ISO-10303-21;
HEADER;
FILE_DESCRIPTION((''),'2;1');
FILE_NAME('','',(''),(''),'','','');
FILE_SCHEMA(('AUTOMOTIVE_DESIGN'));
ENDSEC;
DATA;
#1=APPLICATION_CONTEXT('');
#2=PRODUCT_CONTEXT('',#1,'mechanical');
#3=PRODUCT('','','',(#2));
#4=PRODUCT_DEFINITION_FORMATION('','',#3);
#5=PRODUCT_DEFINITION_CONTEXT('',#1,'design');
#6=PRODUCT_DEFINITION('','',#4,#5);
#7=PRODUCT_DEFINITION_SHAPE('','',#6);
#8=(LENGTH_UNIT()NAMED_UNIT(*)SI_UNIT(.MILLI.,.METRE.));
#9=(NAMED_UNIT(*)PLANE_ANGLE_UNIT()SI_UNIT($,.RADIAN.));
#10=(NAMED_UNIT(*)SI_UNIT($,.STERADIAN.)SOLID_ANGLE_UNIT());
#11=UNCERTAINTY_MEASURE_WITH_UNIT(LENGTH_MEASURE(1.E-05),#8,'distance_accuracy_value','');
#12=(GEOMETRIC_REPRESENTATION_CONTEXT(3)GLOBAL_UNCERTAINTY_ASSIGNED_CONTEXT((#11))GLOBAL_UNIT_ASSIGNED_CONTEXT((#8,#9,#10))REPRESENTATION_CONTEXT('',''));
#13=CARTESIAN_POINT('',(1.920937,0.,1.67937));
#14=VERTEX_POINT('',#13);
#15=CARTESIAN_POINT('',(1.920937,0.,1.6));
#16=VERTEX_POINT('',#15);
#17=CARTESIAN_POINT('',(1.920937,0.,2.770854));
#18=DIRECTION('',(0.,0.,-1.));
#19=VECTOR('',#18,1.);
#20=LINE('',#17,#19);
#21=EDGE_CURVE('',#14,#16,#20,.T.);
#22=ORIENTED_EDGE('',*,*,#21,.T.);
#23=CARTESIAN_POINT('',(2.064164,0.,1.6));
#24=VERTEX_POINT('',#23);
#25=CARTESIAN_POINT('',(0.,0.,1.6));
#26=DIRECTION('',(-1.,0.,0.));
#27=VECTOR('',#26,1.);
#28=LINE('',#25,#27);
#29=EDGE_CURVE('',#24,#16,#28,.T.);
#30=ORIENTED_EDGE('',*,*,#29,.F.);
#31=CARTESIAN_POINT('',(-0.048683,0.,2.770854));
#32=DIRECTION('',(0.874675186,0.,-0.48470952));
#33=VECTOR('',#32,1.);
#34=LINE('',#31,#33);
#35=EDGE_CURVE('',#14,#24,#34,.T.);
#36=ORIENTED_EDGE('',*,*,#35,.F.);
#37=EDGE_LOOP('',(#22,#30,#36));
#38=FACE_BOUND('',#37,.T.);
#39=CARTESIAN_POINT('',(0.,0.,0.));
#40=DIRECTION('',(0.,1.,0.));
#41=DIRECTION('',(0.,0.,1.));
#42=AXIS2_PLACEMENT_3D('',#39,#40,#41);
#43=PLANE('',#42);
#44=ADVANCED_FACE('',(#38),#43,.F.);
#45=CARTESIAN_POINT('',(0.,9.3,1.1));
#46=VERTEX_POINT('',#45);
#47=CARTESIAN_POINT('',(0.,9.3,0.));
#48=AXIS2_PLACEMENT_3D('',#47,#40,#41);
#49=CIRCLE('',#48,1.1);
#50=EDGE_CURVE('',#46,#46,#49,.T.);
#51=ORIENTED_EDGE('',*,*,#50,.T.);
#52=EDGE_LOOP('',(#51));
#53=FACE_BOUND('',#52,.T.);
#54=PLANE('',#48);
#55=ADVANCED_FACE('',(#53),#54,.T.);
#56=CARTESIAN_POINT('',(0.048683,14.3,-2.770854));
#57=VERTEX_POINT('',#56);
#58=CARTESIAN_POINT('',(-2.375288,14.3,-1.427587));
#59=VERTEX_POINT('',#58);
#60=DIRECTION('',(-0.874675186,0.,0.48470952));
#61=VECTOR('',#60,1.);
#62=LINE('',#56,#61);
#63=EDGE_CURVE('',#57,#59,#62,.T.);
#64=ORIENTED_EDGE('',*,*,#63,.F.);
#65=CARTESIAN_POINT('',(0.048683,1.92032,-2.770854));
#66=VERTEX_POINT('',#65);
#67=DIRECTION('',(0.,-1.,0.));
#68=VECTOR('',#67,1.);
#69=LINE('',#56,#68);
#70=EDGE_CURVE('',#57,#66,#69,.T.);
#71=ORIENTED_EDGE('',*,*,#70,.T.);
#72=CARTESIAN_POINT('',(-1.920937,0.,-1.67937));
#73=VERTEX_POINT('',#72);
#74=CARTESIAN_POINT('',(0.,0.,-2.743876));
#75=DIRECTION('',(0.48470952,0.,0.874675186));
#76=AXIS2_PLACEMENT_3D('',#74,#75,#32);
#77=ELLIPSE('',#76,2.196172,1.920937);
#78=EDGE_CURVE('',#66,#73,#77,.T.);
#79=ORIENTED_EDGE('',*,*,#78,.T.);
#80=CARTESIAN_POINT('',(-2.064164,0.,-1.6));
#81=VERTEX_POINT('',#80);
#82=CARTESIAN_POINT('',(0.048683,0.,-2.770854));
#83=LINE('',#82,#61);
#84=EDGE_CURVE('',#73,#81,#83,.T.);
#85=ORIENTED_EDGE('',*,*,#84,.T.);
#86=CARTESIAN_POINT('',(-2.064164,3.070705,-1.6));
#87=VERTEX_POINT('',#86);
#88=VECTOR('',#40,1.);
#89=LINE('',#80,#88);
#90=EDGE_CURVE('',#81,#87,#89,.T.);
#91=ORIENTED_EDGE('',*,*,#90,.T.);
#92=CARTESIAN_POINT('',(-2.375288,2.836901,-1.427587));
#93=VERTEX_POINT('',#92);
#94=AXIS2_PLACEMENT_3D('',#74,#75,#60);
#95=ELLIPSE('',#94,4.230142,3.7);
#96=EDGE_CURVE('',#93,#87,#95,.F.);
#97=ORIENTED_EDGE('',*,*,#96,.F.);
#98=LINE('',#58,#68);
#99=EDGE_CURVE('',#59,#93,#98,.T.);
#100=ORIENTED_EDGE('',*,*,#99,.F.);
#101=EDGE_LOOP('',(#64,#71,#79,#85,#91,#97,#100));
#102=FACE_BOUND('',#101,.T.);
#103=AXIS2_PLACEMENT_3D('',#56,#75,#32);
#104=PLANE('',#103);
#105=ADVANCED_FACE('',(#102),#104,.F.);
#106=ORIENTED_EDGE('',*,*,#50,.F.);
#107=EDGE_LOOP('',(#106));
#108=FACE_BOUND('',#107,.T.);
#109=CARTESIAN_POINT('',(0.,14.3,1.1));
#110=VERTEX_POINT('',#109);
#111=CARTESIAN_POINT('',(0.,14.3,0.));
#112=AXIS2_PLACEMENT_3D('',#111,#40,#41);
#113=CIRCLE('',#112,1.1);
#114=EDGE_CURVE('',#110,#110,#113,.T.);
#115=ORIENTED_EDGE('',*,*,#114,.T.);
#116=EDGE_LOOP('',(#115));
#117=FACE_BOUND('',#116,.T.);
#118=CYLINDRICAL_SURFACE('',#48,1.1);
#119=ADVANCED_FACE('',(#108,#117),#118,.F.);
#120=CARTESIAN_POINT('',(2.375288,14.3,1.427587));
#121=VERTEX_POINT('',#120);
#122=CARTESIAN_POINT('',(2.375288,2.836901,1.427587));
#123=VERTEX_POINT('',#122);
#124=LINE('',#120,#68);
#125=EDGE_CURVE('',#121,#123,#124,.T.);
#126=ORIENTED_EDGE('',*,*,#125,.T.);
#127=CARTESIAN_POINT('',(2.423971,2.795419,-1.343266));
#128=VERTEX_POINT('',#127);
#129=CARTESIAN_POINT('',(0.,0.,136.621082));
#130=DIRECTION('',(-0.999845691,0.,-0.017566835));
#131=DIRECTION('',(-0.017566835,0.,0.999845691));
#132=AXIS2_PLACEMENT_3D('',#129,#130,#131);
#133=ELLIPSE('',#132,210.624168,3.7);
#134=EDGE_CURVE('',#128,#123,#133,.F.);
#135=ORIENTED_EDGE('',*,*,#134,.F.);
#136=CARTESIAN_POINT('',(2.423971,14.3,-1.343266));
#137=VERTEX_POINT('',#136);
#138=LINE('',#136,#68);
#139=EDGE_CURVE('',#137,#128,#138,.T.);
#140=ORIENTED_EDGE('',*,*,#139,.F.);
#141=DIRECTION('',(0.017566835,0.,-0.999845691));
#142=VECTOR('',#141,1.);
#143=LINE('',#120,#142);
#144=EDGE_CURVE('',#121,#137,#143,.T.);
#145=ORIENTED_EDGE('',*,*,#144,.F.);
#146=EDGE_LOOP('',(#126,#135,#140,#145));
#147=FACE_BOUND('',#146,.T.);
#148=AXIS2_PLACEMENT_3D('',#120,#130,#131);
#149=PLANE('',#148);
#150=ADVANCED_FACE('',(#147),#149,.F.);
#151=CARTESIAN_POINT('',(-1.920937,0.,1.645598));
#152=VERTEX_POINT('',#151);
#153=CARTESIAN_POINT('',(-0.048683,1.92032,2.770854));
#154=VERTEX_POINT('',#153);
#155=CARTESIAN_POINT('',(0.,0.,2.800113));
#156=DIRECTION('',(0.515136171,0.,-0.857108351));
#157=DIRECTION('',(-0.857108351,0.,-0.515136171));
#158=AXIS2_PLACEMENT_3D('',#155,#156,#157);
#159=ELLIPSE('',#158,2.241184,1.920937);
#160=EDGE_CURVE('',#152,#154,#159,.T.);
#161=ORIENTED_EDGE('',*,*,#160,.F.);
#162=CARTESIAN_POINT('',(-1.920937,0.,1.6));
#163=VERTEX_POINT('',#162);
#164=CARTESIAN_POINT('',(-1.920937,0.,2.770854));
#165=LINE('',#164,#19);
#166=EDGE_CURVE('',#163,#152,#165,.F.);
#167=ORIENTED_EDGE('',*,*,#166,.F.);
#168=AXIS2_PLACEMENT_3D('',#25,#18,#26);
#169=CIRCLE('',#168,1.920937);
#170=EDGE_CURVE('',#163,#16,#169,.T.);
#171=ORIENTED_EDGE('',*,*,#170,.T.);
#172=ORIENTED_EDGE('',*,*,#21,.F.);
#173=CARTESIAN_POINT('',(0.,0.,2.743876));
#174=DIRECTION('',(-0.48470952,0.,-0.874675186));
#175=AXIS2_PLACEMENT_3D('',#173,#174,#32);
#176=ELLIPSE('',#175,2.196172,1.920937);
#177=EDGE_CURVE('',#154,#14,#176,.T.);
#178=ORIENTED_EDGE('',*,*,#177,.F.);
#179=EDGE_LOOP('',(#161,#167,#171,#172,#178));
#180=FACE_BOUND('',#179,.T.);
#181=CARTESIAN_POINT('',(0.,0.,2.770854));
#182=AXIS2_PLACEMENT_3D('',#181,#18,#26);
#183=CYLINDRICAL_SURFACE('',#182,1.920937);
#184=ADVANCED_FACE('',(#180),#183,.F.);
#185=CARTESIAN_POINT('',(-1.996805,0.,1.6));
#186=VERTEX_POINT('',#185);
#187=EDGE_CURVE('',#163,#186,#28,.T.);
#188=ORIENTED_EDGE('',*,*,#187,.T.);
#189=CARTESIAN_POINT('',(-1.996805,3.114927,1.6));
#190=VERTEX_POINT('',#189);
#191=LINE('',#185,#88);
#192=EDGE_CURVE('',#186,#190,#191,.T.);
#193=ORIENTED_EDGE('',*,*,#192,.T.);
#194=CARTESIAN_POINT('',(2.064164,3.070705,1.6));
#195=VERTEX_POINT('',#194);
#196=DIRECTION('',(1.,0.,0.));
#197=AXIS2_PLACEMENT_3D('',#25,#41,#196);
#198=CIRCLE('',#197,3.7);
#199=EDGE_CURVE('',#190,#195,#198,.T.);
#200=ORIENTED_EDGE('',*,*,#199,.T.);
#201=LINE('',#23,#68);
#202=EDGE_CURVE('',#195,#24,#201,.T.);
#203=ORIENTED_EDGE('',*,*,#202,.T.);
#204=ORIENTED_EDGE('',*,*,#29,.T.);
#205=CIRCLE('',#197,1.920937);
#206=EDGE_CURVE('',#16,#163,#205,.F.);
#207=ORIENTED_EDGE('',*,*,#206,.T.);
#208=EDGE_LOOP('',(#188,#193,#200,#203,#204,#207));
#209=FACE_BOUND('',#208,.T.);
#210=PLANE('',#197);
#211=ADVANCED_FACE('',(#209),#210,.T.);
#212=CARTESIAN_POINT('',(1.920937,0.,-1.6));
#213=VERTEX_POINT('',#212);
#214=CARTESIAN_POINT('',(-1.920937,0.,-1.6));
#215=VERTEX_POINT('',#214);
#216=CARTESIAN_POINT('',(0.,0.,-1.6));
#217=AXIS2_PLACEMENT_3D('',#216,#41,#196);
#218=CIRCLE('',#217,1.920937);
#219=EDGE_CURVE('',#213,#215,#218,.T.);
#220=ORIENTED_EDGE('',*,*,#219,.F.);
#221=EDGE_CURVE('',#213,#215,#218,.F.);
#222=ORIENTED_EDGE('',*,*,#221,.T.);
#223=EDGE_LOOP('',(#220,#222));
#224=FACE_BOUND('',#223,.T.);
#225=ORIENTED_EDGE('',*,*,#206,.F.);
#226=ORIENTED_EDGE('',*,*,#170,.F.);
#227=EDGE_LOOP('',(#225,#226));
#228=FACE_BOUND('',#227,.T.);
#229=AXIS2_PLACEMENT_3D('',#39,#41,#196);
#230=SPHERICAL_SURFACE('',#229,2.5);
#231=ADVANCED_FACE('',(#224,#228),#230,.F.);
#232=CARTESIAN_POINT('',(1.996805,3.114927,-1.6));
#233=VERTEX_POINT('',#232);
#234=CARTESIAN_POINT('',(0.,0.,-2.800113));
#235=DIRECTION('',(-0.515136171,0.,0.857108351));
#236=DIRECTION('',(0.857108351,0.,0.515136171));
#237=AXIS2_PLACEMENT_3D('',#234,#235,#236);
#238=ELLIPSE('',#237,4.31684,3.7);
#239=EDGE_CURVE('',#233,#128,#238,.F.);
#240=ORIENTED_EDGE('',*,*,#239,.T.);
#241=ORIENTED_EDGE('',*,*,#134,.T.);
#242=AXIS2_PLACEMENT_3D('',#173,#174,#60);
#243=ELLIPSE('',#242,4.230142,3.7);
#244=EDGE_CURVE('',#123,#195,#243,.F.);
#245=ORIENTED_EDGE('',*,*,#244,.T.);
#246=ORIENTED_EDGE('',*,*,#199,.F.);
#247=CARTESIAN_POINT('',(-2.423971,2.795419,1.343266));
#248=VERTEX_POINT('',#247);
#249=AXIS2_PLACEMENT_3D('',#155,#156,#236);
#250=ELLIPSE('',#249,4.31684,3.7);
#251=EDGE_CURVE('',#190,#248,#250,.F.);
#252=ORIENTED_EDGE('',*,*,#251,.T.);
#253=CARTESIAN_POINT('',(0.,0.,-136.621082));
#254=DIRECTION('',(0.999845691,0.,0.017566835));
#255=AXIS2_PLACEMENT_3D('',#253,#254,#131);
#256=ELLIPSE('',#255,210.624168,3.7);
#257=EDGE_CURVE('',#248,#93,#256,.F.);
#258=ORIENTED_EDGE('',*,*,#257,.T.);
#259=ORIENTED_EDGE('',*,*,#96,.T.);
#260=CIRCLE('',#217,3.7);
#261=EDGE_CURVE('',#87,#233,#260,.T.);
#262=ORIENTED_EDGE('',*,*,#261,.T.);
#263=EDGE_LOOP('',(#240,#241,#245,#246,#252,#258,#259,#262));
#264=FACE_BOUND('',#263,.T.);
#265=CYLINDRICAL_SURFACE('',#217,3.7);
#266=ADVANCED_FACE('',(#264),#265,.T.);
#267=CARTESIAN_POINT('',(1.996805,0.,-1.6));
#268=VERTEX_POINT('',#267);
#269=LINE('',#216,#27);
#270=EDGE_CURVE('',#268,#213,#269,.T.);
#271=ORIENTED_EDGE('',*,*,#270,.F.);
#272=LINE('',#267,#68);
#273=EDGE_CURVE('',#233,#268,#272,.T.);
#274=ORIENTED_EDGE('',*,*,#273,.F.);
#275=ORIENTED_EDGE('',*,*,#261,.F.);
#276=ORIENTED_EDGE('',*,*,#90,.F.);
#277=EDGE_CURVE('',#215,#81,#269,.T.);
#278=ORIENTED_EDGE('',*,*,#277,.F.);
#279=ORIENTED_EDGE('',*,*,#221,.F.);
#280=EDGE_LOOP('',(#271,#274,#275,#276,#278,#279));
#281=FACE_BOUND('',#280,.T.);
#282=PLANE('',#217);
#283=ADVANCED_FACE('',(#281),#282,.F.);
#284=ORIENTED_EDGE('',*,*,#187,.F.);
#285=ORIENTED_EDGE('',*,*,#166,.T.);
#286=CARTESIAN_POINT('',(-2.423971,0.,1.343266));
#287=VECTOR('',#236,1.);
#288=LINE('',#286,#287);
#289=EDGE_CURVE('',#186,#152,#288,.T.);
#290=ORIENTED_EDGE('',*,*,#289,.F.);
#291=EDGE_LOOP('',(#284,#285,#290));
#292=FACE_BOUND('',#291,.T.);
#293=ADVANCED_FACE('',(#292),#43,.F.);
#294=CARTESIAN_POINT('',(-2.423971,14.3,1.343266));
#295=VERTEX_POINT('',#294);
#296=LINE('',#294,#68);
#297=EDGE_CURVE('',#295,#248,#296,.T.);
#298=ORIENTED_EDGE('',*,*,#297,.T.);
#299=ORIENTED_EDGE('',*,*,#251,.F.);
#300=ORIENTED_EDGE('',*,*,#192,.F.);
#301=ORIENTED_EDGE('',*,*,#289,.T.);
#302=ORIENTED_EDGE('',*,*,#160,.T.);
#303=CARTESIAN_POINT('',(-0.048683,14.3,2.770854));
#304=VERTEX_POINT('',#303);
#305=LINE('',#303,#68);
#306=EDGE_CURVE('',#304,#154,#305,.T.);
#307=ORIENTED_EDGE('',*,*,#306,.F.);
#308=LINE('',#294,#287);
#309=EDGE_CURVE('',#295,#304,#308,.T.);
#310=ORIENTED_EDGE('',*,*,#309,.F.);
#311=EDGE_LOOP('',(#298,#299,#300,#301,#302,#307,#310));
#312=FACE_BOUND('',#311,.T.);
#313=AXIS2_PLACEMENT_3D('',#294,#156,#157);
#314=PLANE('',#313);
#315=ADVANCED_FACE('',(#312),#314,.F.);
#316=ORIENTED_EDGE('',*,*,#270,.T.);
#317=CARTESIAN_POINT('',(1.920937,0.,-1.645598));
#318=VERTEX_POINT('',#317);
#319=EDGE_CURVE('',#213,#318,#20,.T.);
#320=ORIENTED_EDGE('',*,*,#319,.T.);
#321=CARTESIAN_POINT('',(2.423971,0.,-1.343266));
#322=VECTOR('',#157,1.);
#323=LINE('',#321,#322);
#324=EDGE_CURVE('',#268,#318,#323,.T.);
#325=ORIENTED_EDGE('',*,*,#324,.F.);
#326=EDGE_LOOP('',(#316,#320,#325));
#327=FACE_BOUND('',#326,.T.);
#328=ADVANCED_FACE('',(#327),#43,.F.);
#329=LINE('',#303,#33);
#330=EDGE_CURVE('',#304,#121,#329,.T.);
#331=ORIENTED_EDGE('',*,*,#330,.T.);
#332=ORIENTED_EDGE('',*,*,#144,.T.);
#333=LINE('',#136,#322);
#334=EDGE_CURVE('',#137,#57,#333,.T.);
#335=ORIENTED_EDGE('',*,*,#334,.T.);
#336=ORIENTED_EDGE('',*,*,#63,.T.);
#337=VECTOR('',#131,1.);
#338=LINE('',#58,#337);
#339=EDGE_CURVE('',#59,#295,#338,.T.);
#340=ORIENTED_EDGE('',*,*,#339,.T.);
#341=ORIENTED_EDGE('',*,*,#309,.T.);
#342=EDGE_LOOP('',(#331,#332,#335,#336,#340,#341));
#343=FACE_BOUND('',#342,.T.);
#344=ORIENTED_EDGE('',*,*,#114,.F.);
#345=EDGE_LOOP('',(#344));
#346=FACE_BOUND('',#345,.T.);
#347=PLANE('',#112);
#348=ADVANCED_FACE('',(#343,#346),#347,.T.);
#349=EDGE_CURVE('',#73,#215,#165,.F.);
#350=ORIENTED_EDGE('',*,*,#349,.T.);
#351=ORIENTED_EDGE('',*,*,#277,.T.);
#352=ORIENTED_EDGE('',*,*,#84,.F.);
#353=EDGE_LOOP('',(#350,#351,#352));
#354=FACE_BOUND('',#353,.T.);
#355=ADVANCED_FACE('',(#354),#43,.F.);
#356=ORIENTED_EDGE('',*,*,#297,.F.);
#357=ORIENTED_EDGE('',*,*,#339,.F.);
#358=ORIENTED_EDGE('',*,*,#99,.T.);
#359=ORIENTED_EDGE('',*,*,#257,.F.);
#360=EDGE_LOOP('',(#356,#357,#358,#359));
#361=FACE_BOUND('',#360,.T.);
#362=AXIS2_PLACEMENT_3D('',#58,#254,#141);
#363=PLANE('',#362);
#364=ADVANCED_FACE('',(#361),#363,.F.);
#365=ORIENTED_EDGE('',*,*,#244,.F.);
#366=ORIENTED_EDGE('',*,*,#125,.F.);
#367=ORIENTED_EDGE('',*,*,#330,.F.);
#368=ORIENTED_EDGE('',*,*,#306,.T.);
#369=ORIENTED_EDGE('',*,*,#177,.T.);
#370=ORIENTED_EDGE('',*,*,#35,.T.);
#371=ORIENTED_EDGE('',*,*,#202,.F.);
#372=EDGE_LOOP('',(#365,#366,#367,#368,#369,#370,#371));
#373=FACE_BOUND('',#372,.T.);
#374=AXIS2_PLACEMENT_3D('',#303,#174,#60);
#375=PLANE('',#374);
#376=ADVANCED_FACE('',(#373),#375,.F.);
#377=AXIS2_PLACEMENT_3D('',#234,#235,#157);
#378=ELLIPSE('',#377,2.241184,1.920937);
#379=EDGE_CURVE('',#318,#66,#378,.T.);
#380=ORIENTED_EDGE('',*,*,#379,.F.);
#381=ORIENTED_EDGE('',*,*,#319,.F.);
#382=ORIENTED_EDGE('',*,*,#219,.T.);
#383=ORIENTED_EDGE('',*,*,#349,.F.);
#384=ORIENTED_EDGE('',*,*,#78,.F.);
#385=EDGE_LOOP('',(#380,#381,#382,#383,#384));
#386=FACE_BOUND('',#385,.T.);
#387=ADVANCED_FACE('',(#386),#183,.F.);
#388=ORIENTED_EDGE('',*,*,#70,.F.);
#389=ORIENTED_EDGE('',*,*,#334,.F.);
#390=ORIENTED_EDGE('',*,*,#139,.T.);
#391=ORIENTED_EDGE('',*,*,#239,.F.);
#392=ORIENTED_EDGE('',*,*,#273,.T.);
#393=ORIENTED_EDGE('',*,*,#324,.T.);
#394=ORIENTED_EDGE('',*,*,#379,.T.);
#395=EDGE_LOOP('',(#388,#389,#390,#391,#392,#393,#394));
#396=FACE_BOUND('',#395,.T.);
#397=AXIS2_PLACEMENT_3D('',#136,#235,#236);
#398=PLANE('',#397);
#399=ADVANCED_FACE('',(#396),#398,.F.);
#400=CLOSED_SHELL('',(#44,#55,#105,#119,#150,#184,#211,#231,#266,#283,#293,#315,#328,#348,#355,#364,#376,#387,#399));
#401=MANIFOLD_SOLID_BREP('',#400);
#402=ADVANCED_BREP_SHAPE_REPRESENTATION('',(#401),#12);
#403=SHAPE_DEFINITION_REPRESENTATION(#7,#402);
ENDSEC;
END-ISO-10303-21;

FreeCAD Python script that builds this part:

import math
import FreeCAD as App
import Part
import Sketcher

V = App.Vector

doc = App.newDocument("Part")
body = doc.addObject("PartDesign::Body", "Body")

sketch1 = body.newObject("Sketcher::SketchObject", "Sketch")
sketch1.AttachmentSupport = (doc.getObject("XY_Plane"), [""])
sketch1.MapMode = "FlatFace"
sketch1.addGeometry(Part.Circle(V(0, 0, 0), V(0, 0, 1), 3.7), False)
sketch1.addConstraint([
    Sketcher.Constraint("Coincident", 0, 3, -1, 1),
    Sketcher.Constraint("Diameter", 0, 7.4),
])
pad1 = body.newObject("PartDesign::Pad", "Pad")
pad1.Profile = sketch1
pad1.Type = "TwoLengths"
pad1.Length = 1.6
pad1.Length2 = 1.6

sketch2 = body.newObject("Sketcher::SketchObject", "Sketch001")
sketch2.AttachmentSupport = (doc.getObject("XZ_Plane"), [""])
sketch2.MapMode = "FlatFace"
sketch2.addGeometry([
    Part.LineSegment(V(0.048683, -2.770854, 0), V(-2.375288, -1.427587, 0)),
    Part.LineSegment(V(-2.375288, -1.427587, 0), V(-2.423971, 1.343266, 0)),
    Part.LineSegment(V(-2.423971, 1.343266, 0), V(-0.048683, 2.770854, 0)),
    Part.LineSegment(V(-0.048683, 2.770854, 0), V(2.375288, 1.427587, 0)),
    Part.LineSegment(V(2.375288, 1.427587, 0), V(2.423971, -1.343266, 0)),
    Part.LineSegment(V(2.423971, -1.343266, 0), V(0.048683, -2.770854, 0)),
], False)
sketch2.addConstraint([
    Sketcher.Constraint("Coincident", 0, 2, 1, 1),
    Sketcher.Constraint("Coincident", 1, 2, 2, 1),
    Sketcher.Constraint("Coincident", 2, 2, 3, 1),
    Sketcher.Constraint("Coincident", 3, 2, 4, 1),
    Sketcher.Constraint("Coincident", 4, 2, 5, 1),
    Sketcher.Constraint("Coincident", 5, 2, 0, 1),
    Sketcher.Constraint("Symmetric", 0, 2, 3, 2, -1, 1),
    Sketcher.Constraint("Symmetric", 1, 2, 4, 2, -1, 1),
    Sketcher.Constraint("Symmetric", 2, 2, 5, 2, -1, 1),
    Sketcher.Constraint("Equal", 0, 1),
    Sketcher.Constraint("Equal", 1, 2),
    Sketcher.Constraint("Distance", 0, 2.771281),
    Sketcher.Constraint("DistanceX", 0, 2, -1, 1, 2.375288),
    Sketcher.Constraint("DistanceX", 1, 2, -1, 1, 2.423971),
    Sketcher.Constraint("DistanceX", 1, 2, 2, 2, 2.375288),
])
pad2 = body.newObject("PartDesign::Pad", "Pad001")
pad2.Profile = sketch2
pad2.Length = 14.3
pad2.Reversed = True

sketch3 = body.newObject("Sketcher::SketchObject", "Sketch002")
sketch3.AttachmentSupport = (doc.getObject("XY_Plane"), [""])
sketch3.MapMode = "FlatFace"
sketch3.addGeometry([
    Part.LineSegment(V(0, 2.5, 0), V(0, -2.5, 0)),
    Part.ArcOfCircle(Part.Circle(V(0, 0, 0), V(0, 0, 1), 2.5), math.radians(-90), math.radians(90)),
], False)
sketch3.addConstraint([
    Sketcher.Constraint("Coincident", 0, 1, 1, 2),
    Sketcher.Constraint("Coincident", 1, 1, 0, 2),
    Sketcher.Constraint("Vertical", 0),
    Sketcher.Constraint("Coincident", 1, 3, -1, 1),
    Sketcher.Constraint("PointOnObject", 0, 1, -2),
    Sketcher.Constraint("Radius", 1, 2.5),
])
groove = body.newObject("PartDesign::Groove", "Groove")
groove.Profile = sketch3
groove.ReferenceAxis = (sketch3, ["V_Axis"])
groove.Angle = 360

sketch4 = body.newObject("Sketcher::SketchObject", "Sketch003")
sketch4.AttachmentSupport = (doc.getObject("XZ_Plane"), [""])
sketch4.MapMode = "FlatFace"
sketch4.AttachmentOffset = App.Placement(V(0, 0, -14.3), App.Rotation())
sketch4.addGeometry(Part.Circle(V(0, 0, 0), V(0, 0, 1), 1.1), False)
sketch4.addConstraint([
    Sketcher.Constraint("Coincident", 0, 3, -1, 1),
    Sketcher.Constraint("Diameter", 0, 2.2),
])
pocket1 = body.newObject("PartDesign::Pocket", "Pocket")
pocket1.Profile = sketch4
pocket1.Length = 5
pocket1.Reversed = True

sketch5 = body.newObject("Sketcher::SketchObject", "Sketch004")
sketch5.AttachmentSupport = (doc.getObject("XY_Plane"), [""])
sketch5.MapMode = "FlatFace"
sketch5.AttachmentOffset = App.Placement(V(0, 0, -1.6), App.Rotation())
sketch5.addGeometry(Part.Circle(V(0, 0, 0), V(0, 0, 1), 1.920937), False)
sketch5.addConstraint([
    Sketcher.Constraint("Coincident", 0, 3, -1, 1),
    Sketcher.Constraint("Diameter", 0, 3.841875),
])
pocket2 = body.newObject("PartDesign::Pocket", "Pocket001")
pocket2.Profile = sketch5
pocket2.Type = "ThroughAll"
pocket2.Midplane = True

doc.recompute()
